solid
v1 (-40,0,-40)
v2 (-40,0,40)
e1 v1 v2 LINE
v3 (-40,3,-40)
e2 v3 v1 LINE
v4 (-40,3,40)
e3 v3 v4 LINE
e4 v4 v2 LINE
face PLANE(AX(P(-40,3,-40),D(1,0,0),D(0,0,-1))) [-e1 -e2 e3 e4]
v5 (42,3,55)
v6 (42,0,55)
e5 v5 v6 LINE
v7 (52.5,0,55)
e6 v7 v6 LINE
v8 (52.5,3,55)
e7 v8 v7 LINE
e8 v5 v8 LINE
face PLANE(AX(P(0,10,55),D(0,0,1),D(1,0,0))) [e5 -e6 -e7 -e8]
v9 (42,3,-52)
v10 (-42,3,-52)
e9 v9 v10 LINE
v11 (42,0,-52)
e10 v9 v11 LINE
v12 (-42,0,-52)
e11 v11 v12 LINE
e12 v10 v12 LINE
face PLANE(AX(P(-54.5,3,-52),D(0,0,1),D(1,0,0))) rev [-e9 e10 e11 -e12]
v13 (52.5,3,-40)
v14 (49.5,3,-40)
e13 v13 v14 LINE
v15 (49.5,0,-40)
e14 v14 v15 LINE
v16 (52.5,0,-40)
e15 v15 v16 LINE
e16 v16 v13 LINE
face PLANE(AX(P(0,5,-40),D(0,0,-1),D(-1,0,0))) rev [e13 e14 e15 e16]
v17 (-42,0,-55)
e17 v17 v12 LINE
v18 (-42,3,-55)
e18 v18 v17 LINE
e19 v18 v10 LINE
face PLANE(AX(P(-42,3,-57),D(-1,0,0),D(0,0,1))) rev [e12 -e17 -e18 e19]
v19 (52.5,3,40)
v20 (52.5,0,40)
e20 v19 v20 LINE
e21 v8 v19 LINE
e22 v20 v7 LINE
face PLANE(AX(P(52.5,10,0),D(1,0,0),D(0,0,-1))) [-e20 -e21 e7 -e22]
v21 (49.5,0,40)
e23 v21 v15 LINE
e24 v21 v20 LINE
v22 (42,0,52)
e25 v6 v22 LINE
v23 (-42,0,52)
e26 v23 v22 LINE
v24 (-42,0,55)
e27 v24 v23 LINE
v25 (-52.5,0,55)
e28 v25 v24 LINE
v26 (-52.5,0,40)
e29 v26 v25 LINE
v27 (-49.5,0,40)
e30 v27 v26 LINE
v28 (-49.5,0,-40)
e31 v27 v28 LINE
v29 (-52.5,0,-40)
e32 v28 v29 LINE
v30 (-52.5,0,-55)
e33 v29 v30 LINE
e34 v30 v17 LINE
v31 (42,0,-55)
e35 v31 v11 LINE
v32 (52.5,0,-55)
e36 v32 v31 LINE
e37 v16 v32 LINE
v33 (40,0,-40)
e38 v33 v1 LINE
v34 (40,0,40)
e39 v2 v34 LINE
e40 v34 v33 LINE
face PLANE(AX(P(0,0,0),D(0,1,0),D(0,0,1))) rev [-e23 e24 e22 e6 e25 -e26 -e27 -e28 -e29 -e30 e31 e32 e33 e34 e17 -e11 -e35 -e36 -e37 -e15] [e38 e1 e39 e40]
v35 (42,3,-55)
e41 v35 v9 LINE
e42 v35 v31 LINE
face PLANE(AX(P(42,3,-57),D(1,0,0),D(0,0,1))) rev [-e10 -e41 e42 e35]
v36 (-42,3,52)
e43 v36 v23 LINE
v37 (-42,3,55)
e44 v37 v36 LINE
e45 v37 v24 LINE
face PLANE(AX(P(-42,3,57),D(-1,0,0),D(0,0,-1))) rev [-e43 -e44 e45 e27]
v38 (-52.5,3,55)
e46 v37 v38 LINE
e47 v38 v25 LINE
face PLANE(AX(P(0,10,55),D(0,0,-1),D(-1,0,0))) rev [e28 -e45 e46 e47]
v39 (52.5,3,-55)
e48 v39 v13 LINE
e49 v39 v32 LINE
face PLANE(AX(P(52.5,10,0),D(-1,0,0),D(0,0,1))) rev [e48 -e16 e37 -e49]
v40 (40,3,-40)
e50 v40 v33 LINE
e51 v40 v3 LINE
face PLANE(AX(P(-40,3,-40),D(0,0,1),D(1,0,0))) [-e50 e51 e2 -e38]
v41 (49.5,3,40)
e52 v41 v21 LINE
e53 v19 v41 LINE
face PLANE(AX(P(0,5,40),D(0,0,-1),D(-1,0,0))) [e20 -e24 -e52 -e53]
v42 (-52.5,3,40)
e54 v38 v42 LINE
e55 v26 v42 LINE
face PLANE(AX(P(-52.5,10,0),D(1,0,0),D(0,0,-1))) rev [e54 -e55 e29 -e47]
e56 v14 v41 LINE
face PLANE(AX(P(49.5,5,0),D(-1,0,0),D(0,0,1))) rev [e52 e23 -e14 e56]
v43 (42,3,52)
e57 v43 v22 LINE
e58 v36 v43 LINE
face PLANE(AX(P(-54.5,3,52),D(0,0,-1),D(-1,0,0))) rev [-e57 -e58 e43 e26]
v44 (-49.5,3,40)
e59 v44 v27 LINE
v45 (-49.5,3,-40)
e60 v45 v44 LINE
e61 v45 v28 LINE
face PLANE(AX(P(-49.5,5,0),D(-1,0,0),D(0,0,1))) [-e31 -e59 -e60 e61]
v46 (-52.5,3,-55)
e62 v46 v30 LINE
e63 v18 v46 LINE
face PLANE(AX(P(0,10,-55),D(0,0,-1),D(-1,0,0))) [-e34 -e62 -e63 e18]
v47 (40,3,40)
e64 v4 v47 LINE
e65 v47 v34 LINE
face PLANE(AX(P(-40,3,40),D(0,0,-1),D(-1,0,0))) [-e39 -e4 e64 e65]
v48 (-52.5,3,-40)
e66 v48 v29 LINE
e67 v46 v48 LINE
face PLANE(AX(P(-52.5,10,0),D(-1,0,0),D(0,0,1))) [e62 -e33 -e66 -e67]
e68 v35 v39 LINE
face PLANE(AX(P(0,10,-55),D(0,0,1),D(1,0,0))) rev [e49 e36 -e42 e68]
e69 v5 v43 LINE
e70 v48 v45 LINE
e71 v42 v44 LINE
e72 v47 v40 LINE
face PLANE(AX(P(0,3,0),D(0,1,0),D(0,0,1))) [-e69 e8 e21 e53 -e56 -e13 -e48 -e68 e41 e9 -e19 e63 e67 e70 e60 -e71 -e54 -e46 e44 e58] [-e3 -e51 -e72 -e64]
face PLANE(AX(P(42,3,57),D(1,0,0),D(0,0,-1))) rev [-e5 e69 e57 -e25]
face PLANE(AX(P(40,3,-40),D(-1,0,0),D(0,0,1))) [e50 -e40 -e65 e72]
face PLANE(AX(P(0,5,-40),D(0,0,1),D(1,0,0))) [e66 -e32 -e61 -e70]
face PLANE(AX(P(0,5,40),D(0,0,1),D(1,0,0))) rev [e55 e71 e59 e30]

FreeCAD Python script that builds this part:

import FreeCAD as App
import Part
import Sketcher

V = App.Vector


def add_polygon(sketch, points):
    """Adds a closed chain of lines whose ends are joined by coincident constraints."""
    first, n = sketch.GeometryCount, len(points)
    for a, b in zip(points, points[1:] + points[:1]):
        sketch.addGeometry(Part.LineSegment(App.Vector(*a, 0), App.Vector(*b, 0)), False)
    for i in range(n):
        sketch.addConstraint(Sketcher.Constraint("Coincident", first + i, 2, first + (i + 1) % n, 1))

doc = App.newDocument("Part")
body = doc.addObject("PartDesign::Body", "Body")

# Sketch on XZ plane
sketch1 = body.newObject("Sketcher::SketchObject", "Sketch")
sketch1.AttachmentSupport = (doc.getObject("XZ_Plane"), [""])
sketch1.MapMode = "FlatFace"
add_polygon(sketch1, [(-54.5, -52), (-54.5, 52), (54.5, 52), (54.5, -52)])  # lines 0-3
add_polygon(sketch1, [(40, 40), (-40, 40), (-40, -40), (40, -40)])  # lines 4-7
sketch1.addConstraint([
    Sketcher.Constraint("Vertical", 0),
    Sketcher.Constraint("Horizontal", 1),
    Sketcher.Constraint("Vertical", 2),
    Sketcher.Constraint("Horizontal", 3),
    Sketcher.Constraint("Horizontal", 4),
    Sketcher.Constraint("Vertical", 5),
    Sketcher.Constraint("Horizontal", 6),
    Sketcher.Constraint("Vertical", 7),
    Sketcher.Constraint("Symmetric", 0, 2, 2, 2, -1, 1),
    Sketcher.Constraint("Symmetric", 4, 2, 6, 2, -1, 1),
    Sketcher.Constraint("Equal", 6, 5),
    Sketcher.Constraint("DistanceX", 1, 1, 1, 2, 109.0),
    Sketcher.Constraint("DistanceX", 4, 2, 4, 1, 80.0),
    Sketcher.Constraint("DistanceY", 0, 1, 0, 2, 104.0),
])
pad1 = body.newObject("PartDesign::Pad", "Pad")
pad1.Profile = sketch1
pad1.Length = 3
pad1.Reversed = True

# Sketch on XY plane
sketch2 = body.newObject("Sketcher::SketchObject", "Sketch001")
sketch2.AttachmentSupport = (doc.getObject("XY_Plane"), [""])
sketch2.MapMode = "FlatFace"
sketch2.AttachmentOffset = App.Placement(V(0, 0, -52), App.Rotation())
add_polygon(sketch2, [(-42, 3), (-42, 0), (-54.5, 0), (-54.5, 3)])  # lines 0-3
sketch2.addConstraint([
    Sketcher.Constraint("Vertical", 0),
    Sketcher.Constraint("Horizontal", 1),
    Sketcher.Constraint("Vertical", 2),
    Sketcher.Constraint("Horizontal", 3),
    Sketcher.Constraint("PointOnObject", 0, 2, -1),
    Sketcher.Constraint("DistanceY", 0, 2, 0, 1, 3.0),
    Sketcher.Constraint("DistanceX", 1, 2, 1, 1, 12.5),
    Sketcher.Constraint("DistanceX", 0, 2, -1, 1, 42.0),
])
pad2 = body.newObject("PartDesign::Pad", "Pad001")
pad2.Profile = sketch2
pad2.Length = 5
pad2.Reversed = True
body2 = doc.addObject("PartDesign::Body", "Body001")
doc.recompute()

body2.BaseFeature = body
doc.recompute()

mirroring = doc.addObject("Part::Mirroring", "Mirroring")
mirroring.Source = body
mirroring.Base = V(0, 0, 0)
mirroring.Normal = V(0, 0, 1)
body3 = doc.addObject("PartDesign::Body", "Body002")
body3.BaseFeature = mirroring
boolean = body2.newObject("PartDesign::Boolean", "Boolean")
boolean.Type = "Fuse"
boolean.addObjects([body3])
doc.recompute()
body4 = doc.addObject("PartDesign::Body", "Body003")
doc.recompute()

body4.BaseFeature = body2
doc.recompute()

mirroring2 = doc.addObject("Part::Mirroring", "Mirroring001")
mirroring2.Source = body2
mirroring2.Base = V(0, 0, 0)
mirroring2.Normal = V(1, 0, 0)
body5 = doc.addObject("PartDesign::Body", "Body004")
body5.BaseFeature = mirroring2
boolean2 = body4.newObject("PartDesign::Boolean", "Boolean001")
boolean2.Type = "Fuse"
boolean2.addObjects([body5])
doc.recompute()

# Sketch on XZ plane
sketch3 = body4.newObject("Sketcher::SketchObject", "Sketch002")
sketch3.AttachmentSupport = (doc.getObject("XZ_Plane003"), [""])
sketch3.MapMode = "FlatFace"
add_polygon(sketch3, [(-54.5, 40), (-54.5, -40), (-49.5, -40), (-49.5, 40)])  # lines 0-3
sketch3.addConstraint([
    Sketcher.Constraint("Vertical", 0),
    Sketcher.Constraint("Horizontal", 1),
    Sketcher.Constraint("Vertical", 2),
    Sketcher.Constraint("Horizontal", 3),
    Sketcher.Constraint("DistanceX", 1, 1, 1, 2, 5.0),
    Sketcher.Constraint("DistanceY", 0, 2, 0, 1, 80.0),
    Sketcher.Constraint("DistanceY", 0, 2, -1, 1, 40.0),
    Sketcher.Constraint("DistanceX", 0, 2, -1, 1, 54.5),
])
pocket1 = body4.newObject("PartDesign::Pocket", "Pocket")
pocket1.Profile = sketch3
pocket1.Length = 5
doc.recompute()

mirrored = body4.newObject("PartDesign::Mirrored", "Mirrored")
mirrored.Originals = [pocket1]
mirrored.MirrorPlane = (doc.getObject("YZ_Plane003"), [""])
body4.Tip = mirrored

# Sketch on XZ plane
sketch4 = body4.newObject("Sketcher::SketchObject", "Sketch003")
sketch4.AttachmentSupport = (doc.getObject("XZ_Plane003"), [""])
sketch4.MapMode = "FlatFace"
add_polygon(sketch4, [(42, -55), (42, -57), (54.5, -57), (54.5, -40), (52.5, -40), (52.5, -55)])  # lines 0-5
sketch4.addConstraint([
    Sketcher.Constraint("Vertical", 0),
    Sketcher.Constraint("Horizontal", 1),
    Sketcher.Constraint("Vertical", 2),
    Sketcher.Constraint("Horizontal", 3),
    Sketcher.Constraint("Vertical", 4),
    Sketcher.Constraint("Horizontal", 5),
    Sketcher.Constraint("Equal", 3, 0),
    Sketcher.Constraint("DistanceX", 3, 2, 3, 1, 2.0),
    Sketcher.Constraint("DistanceY", 2, 1, 2, 2, 17.0),
    Sketcher.Constraint("DistanceX", 1, 1, 1, 2, 12.5),
    Sketcher.Constraint("DistanceX", -1, 1, 0, 2, 42.0),
    Sketcher.Constraint("DistanceY", 0, 2, -1, 1, 57.0),
])
pocket2 = body4.newObject("PartDesign::Pocket", "Pocket001")
pocket2.Profile = sketch4
pocket2.Length = 10
doc.recompute()

mirrored2 = body4.newObject("PartDesign::Mirrored", "Mirrored001")
mirrored2.Originals = [pocket2]
mirrored2.MirrorPlane = (doc.getObject("YZ_Plane003"), [""])
body4.Tip = mirrored2
doc.recompute()

mirrored3 = body4.newObject("PartDesign::Mirrored", "Mirrored002")
mirrored3.Originals = [pocket2]
mirrored3.MirrorPlane = (doc.getObject("XY_Plane003"), [""])
body4.Tip = mirrored3

# Sketch on XZ plane
sketch5 = body4.newObject("Sketcher::SketchObject", "Sketch004")
sketch5.AttachmentSupport = (doc.getObject("XZ_Plane003"), [""])
sketch5.MapMode = "FlatFace"
add_polygon(sketch5, [(-42, 55), (-42, 57), (-54.5, 57), (-54.5, 40), (-52.5, 40), (-52.5, 55)])  # lines 0-5
sketch5.addConstraint([
    Sketcher.Constraint("Vertical", 0),
    Sketcher.Constraint("Horizontal", 1),
    Sketcher.Constraint("Vertical", 2),
    Sketcher.Constraint("Horizontal", 3),
    Sketcher.Constraint("Vertical", 4),
    Sketcher.Constraint("Horizontal", 5),
    Sketcher.Constraint("Equal", 3, 0),
    Sketcher.Constraint("DistanceX", 3, 1, 3, 2, 2.0),
    Sketcher.Constraint("DistanceY", 2, 2, 2, 1, 17.0),
    Sketcher.Constraint("DistanceX", 1, 2, 1, 1, 12.5),
    Sketcher.Constraint("DistanceX", 0, 2, -1, 1, 42.0),
    Sketcher.Constraint("DistanceY", -1, 1, 0, 2, 57.0),
])
pocket3 = body4.newObject("PartDesign::Pocket", "Pocket002")
pocket3.Profile = sketch5
pocket3.Length = 10
mirroring.Visibility = False
mirroring2.Visibility = False

doc.recompute()
